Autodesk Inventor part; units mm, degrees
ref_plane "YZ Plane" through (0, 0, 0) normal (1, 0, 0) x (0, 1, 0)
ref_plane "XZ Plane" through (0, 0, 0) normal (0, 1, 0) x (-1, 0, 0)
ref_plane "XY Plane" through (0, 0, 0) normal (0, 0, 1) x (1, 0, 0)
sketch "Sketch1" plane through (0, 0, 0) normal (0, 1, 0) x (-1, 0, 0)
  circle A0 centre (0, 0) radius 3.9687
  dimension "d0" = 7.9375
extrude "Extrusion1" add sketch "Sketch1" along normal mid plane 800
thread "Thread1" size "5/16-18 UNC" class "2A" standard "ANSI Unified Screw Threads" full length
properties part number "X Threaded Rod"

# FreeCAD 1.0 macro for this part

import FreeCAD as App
import Part
import Sketcher
Q = App.Units.Quantity

doc = App.newDocument("Part")
body = doc.addObject("PartDesign::Body", "Body")

# Sketch on XZ plane
sketch1 = body.newObject("Sketcher::SketchObject", "Sketch")
sketch1.AttachmentSupport = (doc.getObject("XZ_Plane"), [""])
sketch1.MapMode = "FlatFace"
sketch1.addGeometry(Part.Circle(App.Vector(0, 0, 0), App.Vector(0, 0, 1), 4), False)
sketch1.addConstraint(Sketcher.Constraint("Coincident", 0, 3, -1, 1))
sketch1.addConstraint(Sketcher.Constraint("Diameter", 0, Q("7.9374 mm")))
pad1 = body.newObject("PartDesign::Pad", "Pad")
pad1.Profile = sketch1
pad1.Length = 800
pad1.Midplane = True

doc.recompute()
